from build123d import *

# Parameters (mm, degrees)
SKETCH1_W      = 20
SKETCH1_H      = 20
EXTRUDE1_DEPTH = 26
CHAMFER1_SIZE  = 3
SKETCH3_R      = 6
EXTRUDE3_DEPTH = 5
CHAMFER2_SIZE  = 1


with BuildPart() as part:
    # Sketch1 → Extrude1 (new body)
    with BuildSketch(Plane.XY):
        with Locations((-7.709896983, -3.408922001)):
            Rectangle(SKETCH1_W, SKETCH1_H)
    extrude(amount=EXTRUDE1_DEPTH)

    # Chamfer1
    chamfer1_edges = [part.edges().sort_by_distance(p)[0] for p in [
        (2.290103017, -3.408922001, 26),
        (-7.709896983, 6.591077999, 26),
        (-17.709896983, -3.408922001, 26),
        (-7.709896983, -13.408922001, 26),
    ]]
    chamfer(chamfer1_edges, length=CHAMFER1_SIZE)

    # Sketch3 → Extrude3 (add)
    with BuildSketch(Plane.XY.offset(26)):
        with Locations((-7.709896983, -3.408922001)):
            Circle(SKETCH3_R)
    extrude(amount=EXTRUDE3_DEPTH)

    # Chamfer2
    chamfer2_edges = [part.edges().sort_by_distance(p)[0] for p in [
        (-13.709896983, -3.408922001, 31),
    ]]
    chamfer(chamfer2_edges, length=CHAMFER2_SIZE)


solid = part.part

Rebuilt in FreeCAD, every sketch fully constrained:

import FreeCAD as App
import Part
import Sketcher

V = App.Vector


def edges_at(feature, points):
    """Names of the edges that pass closest to the given points."""
    edges = feature.Shape.Edges
    near = lambda p: min(range(len(edges)), key=lambda i: edges[i].distToShape(Part.Vertex(*p))[0])
    return sorted({f"Edge{near(p) + 1}" for p in points})


def add_polygon(sketch, points):
    """Adds a closed chain of lines whose ends are joined by coincident constraints."""
    first, n = sketch.GeometryCount, len(points)
    for a, b in zip(points, points[1:] + points[:1]):
        sketch.addGeometry(Part.LineSegment(App.Vector(*a, 0), App.Vector(*b, 0)), False)
    for i in range(n):
        sketch.addConstraint(Sketcher.Constraint("Coincident", first + i, 2, first + (i + 1) % n, 1))

doc = App.newDocument("Part")
params = doc.addObject("Spreadsheet::Sheet", "Params")
for row, (alias, value) in enumerate([
    ("sketch1_width", "20 mm"),
    ("pad1_length", "26 mm"),
    ("chamfer_size", "3 mm"),
    ("sketch2_diameter", "12 mm"),
    ("pad2_length", "5 mm"),
    ("chamfer2_size", "1 mm"),
], start=1):
    params.set(f"A{row}", alias)
    params.set(f"B{row}", "=" + value)
    params.setAlias(f"B{row}", alias)

body = doc.addObject("PartDesign::Body", "Body")

# Sketch on XY plane
sketch1 = doc.addObject("Sketcher::SketchObject", "Sketch")
body.addObject(sketch1)
sketch1.AttachmentSupport = (doc.XY_Plane, [""])
sketch1.MapMode = "FlatFace"
add_polygon(sketch1, [(-18, 7), (-18, -13), (2, -13), (2, 7)])  # lines 0-3
sketch1.addConstraint([
    Sketcher.Constraint("Vertical", 0),
    Sketcher.Constraint("Horizontal", 1),
    Sketcher.Constraint("Vertical", 2),
    Sketcher.Constraint("Horizontal", 3),
    Sketcher.Constraint("Equal", 3, 0),
    Sketcher.Constraint("DistanceX", 1, 1, 1, 2, 20.0),
    Sketcher.Constraint("DistanceX", 0, 2, -1, 1, 17.709897),
    Sketcher.Constraint("DistanceY", 0, 2, -1, 1, 13.408922),
])
sketch1.setExpression("Constraints[9]", "Params.sketch1_width")
pad1 = doc.addObject("PartDesign::Pad", "Pad")
body.addObject(pad1)
pad1.Profile = sketch1
pad1.setExpression("Length", "Params.pad1_length")
doc.recompute()

chamfer = doc.addObject("PartDesign::Chamfer", "Chamfer")
body.addObject(chamfer)
chamfer.Base = (pad1, edges_at(pad1, [
    (2.29, -3.409, 26),
    (-7.71, 6.591, 26),
    (-17.71, -3.409, 26),
    (-7.71, -13.409, 26),
]))
chamfer.setExpression("Size", "Params.chamfer_size")

# Sketch on XY plane
sketch2 = doc.addObject("Sketcher::SketchObject", "Sketch001")
body.addObject(sketch2)
sketch2.AttachmentSupport = (doc.XY_Plane, [""])
sketch2.MapMode = "FlatFace"
sketch2.AttachmentOffset = App.Placement(V(0, 0, 26), App.Rotation())
sketch2.addGeometry(Part.Circle(V(-8, -3, 0), V(0, 0, 1), 6), False)
sketch2.addConstraint([
    Sketcher.Constraint("Diameter", 0, 12.0),
    Sketcher.Constraint("DistanceX", 0, 3, -1, 1, 7.709897),
    Sketcher.Constraint("DistanceY", 0, 3, -1, 1, 3.408922),
])
sketch2.setExpression("Constraints[0]", "Params.sketch2_diameter")
pad2 = doc.addObject("PartDesign::Pad", "Pad001")
body.addObject(pad2)
pad2.Profile = sketch2
pad2.setExpression("Length", "Params.pad2_length")
doc.recompute()

chamfer2 = doc.addObject("PartDesign::Chamfer", "Chamfer001")
body.addObject(chamfer2)
chamfer2.Base = (pad2, edges_at(pad2, [(-13.71, -3.409, 31)]))
chamfer2.setExpression("Size", "Params.chamfer2_size")

doc.recompute()
